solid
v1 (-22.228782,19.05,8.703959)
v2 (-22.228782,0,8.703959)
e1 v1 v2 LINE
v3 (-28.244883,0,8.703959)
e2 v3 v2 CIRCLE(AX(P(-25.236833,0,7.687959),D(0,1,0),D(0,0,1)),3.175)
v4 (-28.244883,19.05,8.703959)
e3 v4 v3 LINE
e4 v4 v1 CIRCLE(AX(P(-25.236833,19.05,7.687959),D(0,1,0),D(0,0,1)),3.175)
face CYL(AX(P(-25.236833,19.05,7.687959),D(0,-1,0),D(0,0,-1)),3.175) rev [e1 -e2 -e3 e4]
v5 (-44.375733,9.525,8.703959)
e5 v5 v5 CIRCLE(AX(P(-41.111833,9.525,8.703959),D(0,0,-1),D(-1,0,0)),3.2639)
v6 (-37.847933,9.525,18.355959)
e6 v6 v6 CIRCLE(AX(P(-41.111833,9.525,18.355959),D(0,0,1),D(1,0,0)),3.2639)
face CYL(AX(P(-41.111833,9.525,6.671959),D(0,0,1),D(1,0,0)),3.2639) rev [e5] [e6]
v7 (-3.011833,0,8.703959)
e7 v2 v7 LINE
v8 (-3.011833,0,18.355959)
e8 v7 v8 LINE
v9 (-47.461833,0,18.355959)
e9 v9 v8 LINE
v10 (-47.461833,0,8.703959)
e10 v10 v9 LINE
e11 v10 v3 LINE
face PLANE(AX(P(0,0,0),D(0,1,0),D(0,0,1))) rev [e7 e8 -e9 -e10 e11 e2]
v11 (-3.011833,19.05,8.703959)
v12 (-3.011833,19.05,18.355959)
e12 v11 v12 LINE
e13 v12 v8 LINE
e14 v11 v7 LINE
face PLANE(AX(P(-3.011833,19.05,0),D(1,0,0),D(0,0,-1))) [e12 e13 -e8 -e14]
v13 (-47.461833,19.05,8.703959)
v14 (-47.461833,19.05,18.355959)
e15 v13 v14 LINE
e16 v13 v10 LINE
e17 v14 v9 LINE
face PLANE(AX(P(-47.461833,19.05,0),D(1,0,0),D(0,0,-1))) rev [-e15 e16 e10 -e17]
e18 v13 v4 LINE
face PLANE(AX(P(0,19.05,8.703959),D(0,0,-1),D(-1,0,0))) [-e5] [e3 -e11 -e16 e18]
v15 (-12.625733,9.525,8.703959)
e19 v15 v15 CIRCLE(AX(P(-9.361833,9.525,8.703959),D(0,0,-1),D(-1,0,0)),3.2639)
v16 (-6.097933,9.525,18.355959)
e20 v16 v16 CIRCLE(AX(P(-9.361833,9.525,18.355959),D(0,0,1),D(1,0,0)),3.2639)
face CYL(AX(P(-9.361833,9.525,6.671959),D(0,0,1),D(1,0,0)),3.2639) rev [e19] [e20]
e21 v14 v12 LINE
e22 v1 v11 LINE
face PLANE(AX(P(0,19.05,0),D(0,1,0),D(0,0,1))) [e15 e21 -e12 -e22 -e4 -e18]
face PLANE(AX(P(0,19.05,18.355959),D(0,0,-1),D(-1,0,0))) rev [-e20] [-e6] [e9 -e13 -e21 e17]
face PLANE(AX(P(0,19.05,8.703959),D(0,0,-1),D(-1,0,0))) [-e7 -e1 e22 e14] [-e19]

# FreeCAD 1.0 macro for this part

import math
import FreeCAD as App
import Part
import Sketcher
from FreeCAD import Vector
Q = App.Units.Quantity

doc = App.newDocument("Part")
body = doc.addObject("PartDesign::Body", "Body")

# Sketch on XZ plane
sketch1 = body.newObject("Sketcher::SketchObject", "Sketch")
sketch1.AttachmentSupport = (doc.getObject("XZ_Plane"), [""])
sketch1.MapMode = "FlatFace"
sketch1.addGeometry([
    Part.LineSegment(Vector(-28.2, 8.7, 0), Vector(-47.5, 8.7, 0)),  # 0
    Part.LineSegment(Vector(-47.5, 8.7, 0), Vector(-47.5, 18.4, 0)),  # 1
    Part.LineSegment(Vector(-47.5, 18.4, 0), Vector(-3, 18.4, 0)),  # 2
    Part.LineSegment(Vector(-3, 18.4, 0), Vector(-3, 8.7, 0)),  # 3
    Part.LineSegment(Vector(-3, 8.7, 0), Vector(-22.2, 8.7, 0)),  # 4
    Part.ArcOfCircle(Part.Circle(Vector(-25.2, 7.7, 0), Vector(0, 0, 1), 3.2), math.radians(19), math.radians(161)),  # 5
], False)
sketch1.addConstraint([
    Sketcher.Constraint("Coincident", 0, 2, 1, 1),
    Sketcher.Constraint("Coincident", 1, 2, 2, 1),
    Sketcher.Constraint("Coincident", 2, 2, 3, 1),
    Sketcher.Constraint("Coincident", 3, 2, 4, 1),
    Sketcher.Constraint("Coincident", 4, 2, 5, 1),
    Sketcher.Constraint("Coincident", 5, 2, 0, 1),
    Sketcher.Constraint("Horizontal", 0),
    Sketcher.Constraint("Vertical", 1),
    Sketcher.Constraint("Horizontal", 2),
    Sketcher.Constraint("Vertical", 3),
    Sketcher.Constraint("Horizontal", 4),
    Sketcher.Constraint("Horizontal", 0, 2, 3, 2),
    Sketcher.Constraint("Equal", 0, 4),
    Sketcher.Constraint("Radius", 5, Q("0.125 in")),
    Sketcher.Constraint("DistanceX", 2, 1, 2, 2, Q("1.75 in")),
    Sketcher.Constraint("DistanceY", 1, 1, 1, 2, Q("0.38 in")),
    Sketcher.Constraint("DistanceY", 5, 3, 0, 2, Q("0.04 in")),
    Sketcher.Constraint("DistanceY", -1, 1, 5, 3, 7.687959),
    Sketcher.Constraint("DistanceX", 4, 2, -1, 1, 22.228782),
])
pad1 = body.newObject("PartDesign::Pad", "Pad")
pad1.Profile = sketch1
pad1.Length = Q("0.75 in")
pad1.Reversed = True

# Sketch on XY plane
sketch2 = body.newObject("Sketcher::SketchObject", "Sketch001")
sketch2.AttachmentSupport = (doc.getObject("XY_Plane"), [""])
sketch2.MapMode = "FlatFace"
sketch2.AttachmentOffset = App.Placement(Vector(0, 0, 18.355959), App.Rotation())
sketch2.addGeometry([
    Part.Circle(Vector(-41.1, 9.5, 0), Vector(0, 0, 1), 3.3),
    Part.Circle(Vector(-9.4, 9.5, 0), Vector(0, 0, 1), 3.3),
], False)
sketch2.addConstraint([
    Sketcher.Constraint("Equal", 0, 1),
    Sketcher.Constraint("Horizontal", 0, 3, 1, 3),
    Sketcher.Constraint("Diameter", 0, Q("0.257 in")),
    Sketcher.Constraint("DistanceX", 0, 3, 1, 3, Q("1.25 in")),
    Sketcher.Constraint("DistanceY", -1, 1, 0, 3, Q("0.375 in")),
    Sketcher.Constraint("DistanceX", 0, 3, -1, 1, 41.111833),
])
pocket1 = body.newObject("PartDesign::Pocket", "Pocket")
pocket1.Profile = sketch2
pocket1.Length = Q("0.46 in")

doc.recompute()
